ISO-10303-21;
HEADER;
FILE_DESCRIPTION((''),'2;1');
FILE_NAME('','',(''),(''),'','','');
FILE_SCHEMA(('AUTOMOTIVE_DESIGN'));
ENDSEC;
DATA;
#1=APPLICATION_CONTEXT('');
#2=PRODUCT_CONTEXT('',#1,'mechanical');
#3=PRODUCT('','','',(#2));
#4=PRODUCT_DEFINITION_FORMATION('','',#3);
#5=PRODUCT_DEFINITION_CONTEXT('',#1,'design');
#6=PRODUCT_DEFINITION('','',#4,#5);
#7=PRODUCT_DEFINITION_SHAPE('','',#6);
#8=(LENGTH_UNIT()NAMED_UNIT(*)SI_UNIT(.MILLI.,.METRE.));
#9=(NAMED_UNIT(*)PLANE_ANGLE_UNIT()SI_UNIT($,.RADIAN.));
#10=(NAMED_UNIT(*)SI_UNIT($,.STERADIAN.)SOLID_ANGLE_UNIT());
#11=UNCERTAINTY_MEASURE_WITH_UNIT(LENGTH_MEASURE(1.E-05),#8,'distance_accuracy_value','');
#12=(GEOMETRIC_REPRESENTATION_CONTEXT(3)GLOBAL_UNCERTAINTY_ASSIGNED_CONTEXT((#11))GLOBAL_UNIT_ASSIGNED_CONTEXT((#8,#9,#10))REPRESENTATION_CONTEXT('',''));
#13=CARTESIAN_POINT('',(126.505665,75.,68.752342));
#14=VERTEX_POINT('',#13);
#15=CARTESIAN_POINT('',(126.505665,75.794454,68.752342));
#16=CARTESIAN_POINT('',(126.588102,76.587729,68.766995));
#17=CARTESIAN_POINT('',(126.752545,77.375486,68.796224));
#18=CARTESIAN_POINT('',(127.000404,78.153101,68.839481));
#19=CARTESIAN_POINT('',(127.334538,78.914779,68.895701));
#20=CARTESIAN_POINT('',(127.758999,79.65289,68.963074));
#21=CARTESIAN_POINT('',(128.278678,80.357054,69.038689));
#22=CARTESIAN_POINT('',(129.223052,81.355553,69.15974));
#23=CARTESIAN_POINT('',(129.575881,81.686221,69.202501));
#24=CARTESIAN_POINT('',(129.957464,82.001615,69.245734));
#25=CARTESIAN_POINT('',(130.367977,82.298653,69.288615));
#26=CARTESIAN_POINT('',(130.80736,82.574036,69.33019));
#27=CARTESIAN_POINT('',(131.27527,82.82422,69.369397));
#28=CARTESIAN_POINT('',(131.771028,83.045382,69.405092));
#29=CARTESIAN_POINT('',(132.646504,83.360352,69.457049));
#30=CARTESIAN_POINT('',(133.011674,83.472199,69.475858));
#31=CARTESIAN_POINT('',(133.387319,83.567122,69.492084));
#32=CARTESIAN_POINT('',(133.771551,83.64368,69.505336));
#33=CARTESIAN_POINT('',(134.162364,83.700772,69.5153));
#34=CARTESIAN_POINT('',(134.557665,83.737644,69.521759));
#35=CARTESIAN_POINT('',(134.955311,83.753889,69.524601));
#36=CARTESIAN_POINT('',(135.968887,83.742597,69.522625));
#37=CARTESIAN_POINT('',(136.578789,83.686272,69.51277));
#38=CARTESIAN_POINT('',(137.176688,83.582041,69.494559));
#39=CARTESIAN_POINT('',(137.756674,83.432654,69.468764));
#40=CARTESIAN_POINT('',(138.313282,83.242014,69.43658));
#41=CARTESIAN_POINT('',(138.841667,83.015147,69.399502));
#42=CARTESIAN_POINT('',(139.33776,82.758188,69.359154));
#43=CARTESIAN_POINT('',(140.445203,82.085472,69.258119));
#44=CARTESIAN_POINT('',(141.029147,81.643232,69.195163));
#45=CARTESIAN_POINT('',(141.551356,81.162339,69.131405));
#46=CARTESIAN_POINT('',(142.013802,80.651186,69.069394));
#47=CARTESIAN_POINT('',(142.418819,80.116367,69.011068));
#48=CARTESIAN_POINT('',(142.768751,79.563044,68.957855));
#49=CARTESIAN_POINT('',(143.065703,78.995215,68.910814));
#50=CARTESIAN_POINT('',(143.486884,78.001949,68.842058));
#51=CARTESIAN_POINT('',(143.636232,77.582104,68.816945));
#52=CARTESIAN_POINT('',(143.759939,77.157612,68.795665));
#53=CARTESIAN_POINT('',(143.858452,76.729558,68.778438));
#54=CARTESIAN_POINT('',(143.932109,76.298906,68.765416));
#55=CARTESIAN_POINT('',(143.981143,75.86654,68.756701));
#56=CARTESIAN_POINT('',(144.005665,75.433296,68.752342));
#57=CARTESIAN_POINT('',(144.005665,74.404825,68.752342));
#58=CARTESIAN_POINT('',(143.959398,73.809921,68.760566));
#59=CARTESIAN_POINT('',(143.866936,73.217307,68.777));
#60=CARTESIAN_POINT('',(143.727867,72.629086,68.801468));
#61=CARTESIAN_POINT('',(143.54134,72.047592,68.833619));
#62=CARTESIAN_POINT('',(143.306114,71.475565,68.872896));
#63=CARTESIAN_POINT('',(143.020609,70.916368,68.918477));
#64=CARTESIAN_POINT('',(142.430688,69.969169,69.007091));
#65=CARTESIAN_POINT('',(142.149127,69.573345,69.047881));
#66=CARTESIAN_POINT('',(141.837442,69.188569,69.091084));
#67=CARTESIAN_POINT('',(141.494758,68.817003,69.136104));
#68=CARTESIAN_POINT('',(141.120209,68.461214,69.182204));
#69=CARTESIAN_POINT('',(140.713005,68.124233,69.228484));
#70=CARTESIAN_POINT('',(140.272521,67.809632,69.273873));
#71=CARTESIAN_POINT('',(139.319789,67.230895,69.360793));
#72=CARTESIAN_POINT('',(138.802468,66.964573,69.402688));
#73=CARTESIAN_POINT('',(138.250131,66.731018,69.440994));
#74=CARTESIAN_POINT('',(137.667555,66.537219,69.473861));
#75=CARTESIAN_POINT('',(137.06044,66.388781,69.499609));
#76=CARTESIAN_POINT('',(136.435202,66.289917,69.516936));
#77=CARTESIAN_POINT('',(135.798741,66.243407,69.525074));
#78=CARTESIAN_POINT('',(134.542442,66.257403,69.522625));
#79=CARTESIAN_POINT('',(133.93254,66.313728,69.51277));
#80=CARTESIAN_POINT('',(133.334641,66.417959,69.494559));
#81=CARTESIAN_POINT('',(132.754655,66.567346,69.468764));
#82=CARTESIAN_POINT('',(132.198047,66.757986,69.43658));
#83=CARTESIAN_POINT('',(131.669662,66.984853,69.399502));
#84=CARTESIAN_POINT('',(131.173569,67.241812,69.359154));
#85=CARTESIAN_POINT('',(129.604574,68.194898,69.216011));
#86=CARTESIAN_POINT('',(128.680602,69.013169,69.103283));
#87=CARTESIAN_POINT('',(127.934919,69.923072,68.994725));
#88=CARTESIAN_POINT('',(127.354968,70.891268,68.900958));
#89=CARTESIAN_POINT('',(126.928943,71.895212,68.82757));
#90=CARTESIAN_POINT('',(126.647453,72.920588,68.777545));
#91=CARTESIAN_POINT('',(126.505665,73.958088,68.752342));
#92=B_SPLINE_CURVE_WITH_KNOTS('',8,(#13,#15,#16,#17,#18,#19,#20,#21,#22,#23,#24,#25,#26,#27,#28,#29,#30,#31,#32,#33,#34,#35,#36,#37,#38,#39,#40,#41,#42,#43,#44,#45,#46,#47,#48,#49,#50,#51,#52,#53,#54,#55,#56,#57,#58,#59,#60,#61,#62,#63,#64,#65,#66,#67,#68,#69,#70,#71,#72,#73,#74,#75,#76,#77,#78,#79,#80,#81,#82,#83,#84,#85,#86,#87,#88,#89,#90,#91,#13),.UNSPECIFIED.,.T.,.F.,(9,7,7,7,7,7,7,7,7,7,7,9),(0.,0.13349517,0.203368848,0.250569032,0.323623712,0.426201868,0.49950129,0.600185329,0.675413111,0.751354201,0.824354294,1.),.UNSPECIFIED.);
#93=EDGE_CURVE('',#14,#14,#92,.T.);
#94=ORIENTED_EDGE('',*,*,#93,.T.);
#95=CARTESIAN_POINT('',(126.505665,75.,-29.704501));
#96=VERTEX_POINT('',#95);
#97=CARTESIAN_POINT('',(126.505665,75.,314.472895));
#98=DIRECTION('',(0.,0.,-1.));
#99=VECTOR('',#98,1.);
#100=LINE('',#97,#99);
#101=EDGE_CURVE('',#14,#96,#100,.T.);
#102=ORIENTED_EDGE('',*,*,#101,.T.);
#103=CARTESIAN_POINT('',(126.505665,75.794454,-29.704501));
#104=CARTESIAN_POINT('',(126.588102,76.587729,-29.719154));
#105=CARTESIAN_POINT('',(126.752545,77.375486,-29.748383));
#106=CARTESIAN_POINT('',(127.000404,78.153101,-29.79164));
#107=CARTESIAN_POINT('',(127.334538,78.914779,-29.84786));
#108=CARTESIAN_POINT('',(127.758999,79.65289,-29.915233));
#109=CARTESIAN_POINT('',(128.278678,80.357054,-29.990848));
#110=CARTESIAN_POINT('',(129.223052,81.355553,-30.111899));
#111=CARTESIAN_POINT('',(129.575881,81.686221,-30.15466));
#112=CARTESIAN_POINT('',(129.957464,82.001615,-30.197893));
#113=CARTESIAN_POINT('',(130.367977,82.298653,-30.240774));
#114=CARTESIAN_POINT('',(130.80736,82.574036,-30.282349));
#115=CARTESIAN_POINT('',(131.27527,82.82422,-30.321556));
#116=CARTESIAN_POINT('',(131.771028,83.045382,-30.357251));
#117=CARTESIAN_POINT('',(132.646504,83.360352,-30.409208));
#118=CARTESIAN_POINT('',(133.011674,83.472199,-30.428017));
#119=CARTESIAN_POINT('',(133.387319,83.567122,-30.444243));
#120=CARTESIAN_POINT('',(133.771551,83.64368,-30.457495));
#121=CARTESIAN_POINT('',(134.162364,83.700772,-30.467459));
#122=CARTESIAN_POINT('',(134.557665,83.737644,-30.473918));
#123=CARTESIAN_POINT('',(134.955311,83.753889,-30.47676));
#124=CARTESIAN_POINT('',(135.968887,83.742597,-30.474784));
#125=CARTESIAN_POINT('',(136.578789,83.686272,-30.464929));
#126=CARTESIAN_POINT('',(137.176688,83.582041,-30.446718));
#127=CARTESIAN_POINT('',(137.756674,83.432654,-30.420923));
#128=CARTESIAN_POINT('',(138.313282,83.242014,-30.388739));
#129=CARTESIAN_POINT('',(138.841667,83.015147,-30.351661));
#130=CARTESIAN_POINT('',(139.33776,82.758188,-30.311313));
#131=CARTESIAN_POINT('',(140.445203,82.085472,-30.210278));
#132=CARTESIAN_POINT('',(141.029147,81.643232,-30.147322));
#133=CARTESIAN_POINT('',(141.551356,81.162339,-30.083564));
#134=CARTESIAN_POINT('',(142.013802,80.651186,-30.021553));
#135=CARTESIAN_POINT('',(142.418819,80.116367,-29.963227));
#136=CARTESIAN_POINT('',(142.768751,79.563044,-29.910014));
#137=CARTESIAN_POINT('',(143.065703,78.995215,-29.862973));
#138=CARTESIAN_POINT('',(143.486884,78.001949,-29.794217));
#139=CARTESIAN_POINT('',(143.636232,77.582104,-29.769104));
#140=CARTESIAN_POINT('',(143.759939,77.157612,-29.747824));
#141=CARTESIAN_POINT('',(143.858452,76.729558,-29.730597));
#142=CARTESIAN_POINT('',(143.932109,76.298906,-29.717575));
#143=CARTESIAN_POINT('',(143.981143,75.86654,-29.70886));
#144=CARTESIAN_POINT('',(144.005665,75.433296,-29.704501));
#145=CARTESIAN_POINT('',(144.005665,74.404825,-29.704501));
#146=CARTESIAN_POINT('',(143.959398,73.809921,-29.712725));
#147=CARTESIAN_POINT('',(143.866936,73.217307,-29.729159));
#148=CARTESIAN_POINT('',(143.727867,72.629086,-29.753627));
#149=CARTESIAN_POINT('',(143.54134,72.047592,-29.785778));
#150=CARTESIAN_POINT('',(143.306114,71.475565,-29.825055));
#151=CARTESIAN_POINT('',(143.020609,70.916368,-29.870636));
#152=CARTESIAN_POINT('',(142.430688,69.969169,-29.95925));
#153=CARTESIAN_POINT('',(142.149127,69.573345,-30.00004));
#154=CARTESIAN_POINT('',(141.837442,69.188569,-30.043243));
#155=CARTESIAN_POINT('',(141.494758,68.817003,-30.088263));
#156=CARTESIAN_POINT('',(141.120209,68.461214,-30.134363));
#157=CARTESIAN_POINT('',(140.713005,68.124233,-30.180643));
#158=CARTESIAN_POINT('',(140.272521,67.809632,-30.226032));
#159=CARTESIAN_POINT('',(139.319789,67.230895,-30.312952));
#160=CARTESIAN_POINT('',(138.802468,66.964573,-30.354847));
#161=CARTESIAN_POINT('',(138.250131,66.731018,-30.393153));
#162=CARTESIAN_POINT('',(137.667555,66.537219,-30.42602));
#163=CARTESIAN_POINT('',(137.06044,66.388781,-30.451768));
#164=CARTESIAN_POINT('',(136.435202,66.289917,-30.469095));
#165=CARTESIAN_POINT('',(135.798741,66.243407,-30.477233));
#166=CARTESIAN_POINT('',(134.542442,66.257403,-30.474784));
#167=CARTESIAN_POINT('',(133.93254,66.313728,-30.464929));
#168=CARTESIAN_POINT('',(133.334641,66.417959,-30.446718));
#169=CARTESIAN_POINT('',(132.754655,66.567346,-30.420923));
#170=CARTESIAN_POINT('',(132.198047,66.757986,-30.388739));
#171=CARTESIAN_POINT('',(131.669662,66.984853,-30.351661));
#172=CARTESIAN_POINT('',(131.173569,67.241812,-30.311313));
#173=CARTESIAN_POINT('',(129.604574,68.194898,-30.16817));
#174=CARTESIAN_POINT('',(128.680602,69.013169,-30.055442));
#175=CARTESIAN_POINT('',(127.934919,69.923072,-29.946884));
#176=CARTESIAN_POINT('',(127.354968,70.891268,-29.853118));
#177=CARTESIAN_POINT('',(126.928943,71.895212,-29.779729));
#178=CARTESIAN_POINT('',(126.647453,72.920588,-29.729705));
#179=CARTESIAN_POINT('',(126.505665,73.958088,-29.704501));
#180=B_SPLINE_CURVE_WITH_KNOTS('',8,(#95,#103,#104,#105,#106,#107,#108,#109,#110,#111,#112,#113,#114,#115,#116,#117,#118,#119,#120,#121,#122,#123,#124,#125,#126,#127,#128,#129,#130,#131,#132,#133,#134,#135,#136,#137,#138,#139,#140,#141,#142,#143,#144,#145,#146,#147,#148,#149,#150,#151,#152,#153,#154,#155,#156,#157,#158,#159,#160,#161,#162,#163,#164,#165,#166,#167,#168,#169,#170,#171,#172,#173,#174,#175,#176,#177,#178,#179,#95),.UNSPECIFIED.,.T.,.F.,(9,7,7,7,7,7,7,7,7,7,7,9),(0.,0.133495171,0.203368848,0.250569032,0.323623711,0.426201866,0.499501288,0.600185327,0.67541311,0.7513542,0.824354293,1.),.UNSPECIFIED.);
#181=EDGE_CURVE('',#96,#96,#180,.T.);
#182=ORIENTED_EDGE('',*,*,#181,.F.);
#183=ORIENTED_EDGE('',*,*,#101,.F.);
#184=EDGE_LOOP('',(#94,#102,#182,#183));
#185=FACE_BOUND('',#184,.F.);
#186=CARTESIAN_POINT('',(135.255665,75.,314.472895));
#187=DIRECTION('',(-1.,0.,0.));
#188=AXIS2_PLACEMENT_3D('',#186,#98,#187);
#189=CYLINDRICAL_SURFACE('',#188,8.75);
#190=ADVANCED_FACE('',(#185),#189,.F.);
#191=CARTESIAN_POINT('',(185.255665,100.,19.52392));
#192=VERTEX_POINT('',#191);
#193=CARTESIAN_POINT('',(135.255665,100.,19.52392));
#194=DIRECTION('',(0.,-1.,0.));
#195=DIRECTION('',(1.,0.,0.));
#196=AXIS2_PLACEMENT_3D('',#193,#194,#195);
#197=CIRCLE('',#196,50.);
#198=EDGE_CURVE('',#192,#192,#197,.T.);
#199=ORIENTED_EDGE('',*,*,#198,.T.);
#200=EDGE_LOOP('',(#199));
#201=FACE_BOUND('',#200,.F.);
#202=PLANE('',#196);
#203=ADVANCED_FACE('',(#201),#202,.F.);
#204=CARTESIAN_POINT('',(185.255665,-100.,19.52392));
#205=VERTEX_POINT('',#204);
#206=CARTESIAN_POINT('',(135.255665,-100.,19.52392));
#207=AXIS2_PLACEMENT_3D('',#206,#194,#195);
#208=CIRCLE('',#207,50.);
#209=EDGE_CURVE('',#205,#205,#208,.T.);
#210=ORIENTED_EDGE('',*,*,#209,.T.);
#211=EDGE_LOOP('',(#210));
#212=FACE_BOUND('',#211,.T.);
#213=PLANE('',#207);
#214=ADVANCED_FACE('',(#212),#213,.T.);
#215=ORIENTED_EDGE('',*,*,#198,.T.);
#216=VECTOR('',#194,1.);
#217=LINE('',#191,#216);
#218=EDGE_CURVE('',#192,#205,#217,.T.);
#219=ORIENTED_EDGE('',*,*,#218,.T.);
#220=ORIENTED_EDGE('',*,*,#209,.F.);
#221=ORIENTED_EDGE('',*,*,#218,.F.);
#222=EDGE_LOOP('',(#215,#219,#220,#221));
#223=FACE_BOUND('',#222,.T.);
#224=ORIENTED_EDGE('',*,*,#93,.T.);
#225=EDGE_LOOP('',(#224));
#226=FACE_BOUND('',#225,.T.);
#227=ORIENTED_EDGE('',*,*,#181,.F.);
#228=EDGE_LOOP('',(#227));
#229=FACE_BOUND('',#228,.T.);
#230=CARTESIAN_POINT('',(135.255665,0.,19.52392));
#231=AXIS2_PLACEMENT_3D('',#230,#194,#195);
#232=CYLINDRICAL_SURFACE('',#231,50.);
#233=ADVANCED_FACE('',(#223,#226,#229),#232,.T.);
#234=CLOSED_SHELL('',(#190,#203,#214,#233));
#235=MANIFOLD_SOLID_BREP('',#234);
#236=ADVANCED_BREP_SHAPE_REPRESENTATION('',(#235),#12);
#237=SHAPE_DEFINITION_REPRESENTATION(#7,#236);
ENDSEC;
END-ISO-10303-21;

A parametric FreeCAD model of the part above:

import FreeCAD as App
import Part
import Sketcher
from FreeCAD import Vector

doc = App.newDocument("Part")
body = doc.addObject("PartDesign::Body", "Body")

# Sketch on XZ plane
sketch1 = body.newObject("Sketcher::SketchObject", "Sketch")
sketch1.AttachmentSupport = (doc.getObject("XZ_Plane"), [""])
sketch1.MapMode = "FlatFace"
sketch1.addGeometry(Part.Circle(Vector(135.255665, 19.52392, 0), Vector(0, 0, 1), 50), False)
sketch1.addConstraint([
    Sketcher.Constraint("Diameter", 0, 100.0),
    Sketcher.Constraint("DistanceY", -1, 1, 0, 3, 19.52392),
    Sketcher.Constraint("DistanceX", -1, 1, 0, 3, 135.255665),
])
pad1 = body.newObject("PartDesign::Pad", "Pad")
pad1.Profile = sketch1
pad1.Length = 200
pad1.Midplane = True

# Sketch on XY plane
sketch2 = body.newObject("Sketcher::SketchObject", "Sketch001")
sketch2.AttachmentSupport = (doc.getObject("XY_Plane"), [""])
sketch2.MapMode = "FlatFace"
sketch2.AttachmentOffset = App.Placement(Vector(0, 0, 69.52392), App.Rotation())
sketch2.addGeometry(Part.Circle(Vector(135.255665, 75, 0), Vector(0, 0, 1), 8.75), False)
sketch2.addConstraint([
    Sketcher.Constraint("Diameter", 0, 17.5),
    Sketcher.Constraint("DistanceY", -1, 1, 0, 3, 75.0),
    Sketcher.Constraint("DistanceX", -1, 1, 0, 3, 135.255665),
])
doc.recompute()
hole = body.newObject("PartDesign::Hole", "Hole")
hole.Profile = sketch2
hole.ThreadType = "None"
hole.Diameter = 17.5
hole.DepthType = "ThroughAll"

doc.recompute()
